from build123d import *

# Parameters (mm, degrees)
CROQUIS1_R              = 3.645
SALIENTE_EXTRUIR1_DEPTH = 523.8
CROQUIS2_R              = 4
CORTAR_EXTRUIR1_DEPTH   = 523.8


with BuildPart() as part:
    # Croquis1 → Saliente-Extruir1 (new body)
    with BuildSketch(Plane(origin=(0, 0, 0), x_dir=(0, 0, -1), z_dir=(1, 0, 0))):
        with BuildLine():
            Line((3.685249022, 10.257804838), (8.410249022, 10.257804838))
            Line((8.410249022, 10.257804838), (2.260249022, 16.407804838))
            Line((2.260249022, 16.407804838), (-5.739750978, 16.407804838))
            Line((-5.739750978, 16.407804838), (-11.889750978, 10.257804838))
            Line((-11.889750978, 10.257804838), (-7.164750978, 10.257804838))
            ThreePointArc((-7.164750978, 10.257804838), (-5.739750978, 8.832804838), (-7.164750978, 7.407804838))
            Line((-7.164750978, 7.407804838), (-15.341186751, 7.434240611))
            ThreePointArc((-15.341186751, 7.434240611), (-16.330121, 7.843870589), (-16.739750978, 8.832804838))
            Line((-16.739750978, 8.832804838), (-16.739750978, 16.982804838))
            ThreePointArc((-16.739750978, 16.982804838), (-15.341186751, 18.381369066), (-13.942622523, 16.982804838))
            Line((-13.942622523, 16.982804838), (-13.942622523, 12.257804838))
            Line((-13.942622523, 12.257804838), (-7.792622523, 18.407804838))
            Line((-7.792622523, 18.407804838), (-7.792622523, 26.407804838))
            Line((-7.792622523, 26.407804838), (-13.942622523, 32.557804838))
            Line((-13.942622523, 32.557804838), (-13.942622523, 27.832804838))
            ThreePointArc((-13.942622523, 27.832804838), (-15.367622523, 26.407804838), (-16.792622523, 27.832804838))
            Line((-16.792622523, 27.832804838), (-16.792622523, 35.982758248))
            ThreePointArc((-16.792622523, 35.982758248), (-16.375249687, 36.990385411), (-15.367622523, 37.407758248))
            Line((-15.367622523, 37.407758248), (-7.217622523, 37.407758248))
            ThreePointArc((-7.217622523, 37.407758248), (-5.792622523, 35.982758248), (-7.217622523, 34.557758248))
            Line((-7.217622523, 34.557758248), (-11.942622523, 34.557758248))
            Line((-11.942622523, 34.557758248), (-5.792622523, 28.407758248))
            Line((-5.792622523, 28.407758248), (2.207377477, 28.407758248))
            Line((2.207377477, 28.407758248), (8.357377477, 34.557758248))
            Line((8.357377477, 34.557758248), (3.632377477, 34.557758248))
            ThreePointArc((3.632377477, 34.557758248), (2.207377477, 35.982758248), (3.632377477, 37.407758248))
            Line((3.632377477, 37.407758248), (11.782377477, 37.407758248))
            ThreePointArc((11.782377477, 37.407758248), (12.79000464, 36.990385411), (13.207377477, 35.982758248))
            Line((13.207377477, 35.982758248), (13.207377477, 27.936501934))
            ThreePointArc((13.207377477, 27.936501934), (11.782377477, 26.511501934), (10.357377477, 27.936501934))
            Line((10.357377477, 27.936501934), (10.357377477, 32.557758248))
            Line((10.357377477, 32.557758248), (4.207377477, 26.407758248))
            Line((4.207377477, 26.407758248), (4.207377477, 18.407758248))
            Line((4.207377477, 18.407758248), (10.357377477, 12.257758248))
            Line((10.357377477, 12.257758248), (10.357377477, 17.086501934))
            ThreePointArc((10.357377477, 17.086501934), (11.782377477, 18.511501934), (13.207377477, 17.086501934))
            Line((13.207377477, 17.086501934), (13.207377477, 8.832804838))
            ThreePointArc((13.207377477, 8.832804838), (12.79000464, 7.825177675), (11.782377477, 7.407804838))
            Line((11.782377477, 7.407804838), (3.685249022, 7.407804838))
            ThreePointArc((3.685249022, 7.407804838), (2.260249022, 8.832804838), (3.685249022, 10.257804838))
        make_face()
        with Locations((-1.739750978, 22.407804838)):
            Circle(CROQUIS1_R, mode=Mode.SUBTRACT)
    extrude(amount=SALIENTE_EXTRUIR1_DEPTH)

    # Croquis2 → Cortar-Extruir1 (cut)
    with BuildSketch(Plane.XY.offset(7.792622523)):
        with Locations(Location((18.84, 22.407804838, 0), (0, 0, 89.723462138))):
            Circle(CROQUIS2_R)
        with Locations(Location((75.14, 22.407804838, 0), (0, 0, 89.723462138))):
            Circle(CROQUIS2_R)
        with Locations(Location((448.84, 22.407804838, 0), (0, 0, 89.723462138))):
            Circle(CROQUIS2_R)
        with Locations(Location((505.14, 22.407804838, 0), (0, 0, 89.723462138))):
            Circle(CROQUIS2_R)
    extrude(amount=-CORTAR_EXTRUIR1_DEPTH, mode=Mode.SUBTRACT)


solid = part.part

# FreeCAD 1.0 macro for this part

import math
import FreeCAD as App
import Part
import Sketcher

doc = App.newDocument("Part")
body = doc.addObject("PartDesign::Body", "Body")

# Sketch on YZ plane
sketch1 = body.newObject("Sketcher::SketchObject", "Sketch")
sketch1.AttachmentSupport = (doc.getObject("YZ_Plane"), [""])
sketch1.MapMode = "FlatFace"
sketch1.addGeometry([
    Part.LineSegment(App.Vector(10.3, -8.4, 0), App.Vector(10.3, -3.7, 0)),  # 0
    Part.ArcOfCircle(Part.Circle(App.Vector(8.8, -3.7, 0), App.Vector(0, 0, 1), 1.4), math.radians(0), math.radians(180)),  # 1
    Part.LineSegment(App.Vector(7.4, -3.7, 0), App.Vector(7.4, -11.8, 0)),  # 2
    Part.ArcOfCircle(Part.Circle(App.Vector(8.8, -11.8, 0), App.Vector(0, 0, 1), 1.4), math.radians(-180), math.radians(-90)),  # 3
    Part.LineSegment(App.Vector(8.8, -13.2, 0), App.Vector(17.1, -13.2, 0)),  # 4
    Part.ArcOfCircle(Part.Circle(App.Vector(17.1, -11.8, 0), App.Vector(0, 0, 1), 1.4), math.radians(-90), math.radians(90)),  # 5
    Part.LineSegment(App.Vector(17.1, -10.4, 0), App.Vector(12.3, -10.4, 0)),  # 6
    Part.LineSegment(App.Vector(12.3, -10.4, 0), App.Vector(18.4, -4.2, 0)),  # 7
    Part.LineSegment(App.Vector(18.4, -4.2, 0), App.Vector(26.4, -4.2, 0)),  # 8
    Part.LineSegment(App.Vector(26.4, -4.2, 0), App.Vector(32.6, -10.4, 0)),  # 9
    Part.LineSegment(App.Vector(32.6, -10.4, 0), App.Vector(27.9, -10.4, 0)),  # 10
    Part.ArcOfCircle(Part.Circle(App.Vector(27.9, -11.8, 0), App.Vector(0, 0, 1), 1.4), math.radians(90), math.radians(270)),  # 11
    Part.LineSegment(App.Vector(27.9, -13.2, 0), App.Vector(36, -13.2, 0)),  # 12
    Part.ArcOfCircle(Part.Circle(App.Vector(36, -11.8, 0), App.Vector(0, 0, 1), 1.4), math.radians(-90), math.radians(0)),  # 13
    Part.LineSegment(App.Vector(37.4, -11.8, 0), App.Vector(37.4, -3.6, 0)),  # 14
    Part.ArcOfCircle(Part.Circle(App.Vector(36, -3.6, 0), App.Vector(0, 0, 1), 1.4), math.radians(0), math.radians(180)),  # 15
    Part.LineSegment(App.Vector(34.6, -3.6, 0), App.Vector(34.6, -8.4, 0)),  # 16
    Part.LineSegment(App.Vector(34.6, -8.4, 0), App.Vector(28.4, -2.2, 0)),  # 17
    Part.LineSegment(App.Vector(28.4, -2.2, 0), App.Vector(28.4, 5.8, 0)),  # 18
    Part.LineSegment(App.Vector(28.4, 5.8, 0), App.Vector(34.6, 11.9, 0)),  # 19
    Part.LineSegment(App.Vector(34.6, 11.9, 0), App.Vector(34.6, 7.2, 0)),  # 20
    Part.ArcOfCircle(Part.Circle(App.Vector(36, 7.2, 0), App.Vector(0, 0, 1), 1.4), math.radians(180), math.radians(360)),  # 21
    Part.LineSegment(App.Vector(37.4, 7.2, 0), App.Vector(37.4, 15.4, 0)),  # 22
    Part.ArcOfCircle(Part.Circle(App.Vector(36, 15.4, 0), App.Vector(0, 0, 1), 1.4), math.radians(0), math.radians(90)),  # 23
    Part.LineSegment(App.Vector(36, 16.8, 0), App.Vector(27.8, 16.8, 0)),  # 24
    Part.ArcOfCircle(Part.Circle(App.Vector(27.8, 15.4, 0), App.Vector(0, 0, 1), 1.4), math.radians(90), math.radians(270)),  # 25
    Part.LineSegment(App.Vector(27.8, 13.9, 0), App.Vector(32.6, 13.9, 0)),  # 26
    Part.LineSegment(App.Vector(32.6, 13.9, 0), App.Vector(26.4, 7.8, 0)),  # 27
    Part.LineSegment(App.Vector(26.4, 7.8, 0), App.Vector(18.4, 7.8, 0)),  # 28
    Part.LineSegment(App.Vector(18.4, 7.8, 0), App.Vector(12.3, 13.9, 0)),  # 29
    Part.LineSegment(App.Vector(12.3, 13.9, 0), App.Vector(17, 13.9, 0)),  # 30
    Part.ArcOfCircle(Part.Circle(App.Vector(17, 15.3, 0), App.Vector(0, 0, 1), 1.4), math.radians(-90), math.radians(90)),  # 31
    Part.LineSegment(App.Vector(17, 16.7, 0), App.Vector(8.8, 16.7, 0)),  # 32
    Part.ArcOfCircle(Part.Circle(App.Vector(8.8, 15.3, 0), App.Vector(0, 0, 1), 1.4), math.radians(90), math.radians(180)),  # 33
    Part.LineSegment(App.Vector(7.4, 15.3, 0), App.Vector(7.4, 7.2, 0)),  # 34
    Part.ArcOfCircle(Part.Circle(App.Vector(8.8, 7.2, 0), App.Vector(0, 0, 1), 1.4), math.radians(180), math.radians(360)),  # 35
    Part.LineSegment(App.Vector(10.3, 7.2, 0), App.Vector(10.3, 11.9, 0)),  # 36
    Part.LineSegment(App.Vector(10.3, 11.9, 0), App.Vector(16.4, 5.7, 0)),  # 37
    Part.LineSegment(App.Vector(16.4, 5.7, 0), App.Vector(16.4, -2.3, 0)),  # 38
    Part.LineSegment(App.Vector(16.4, -2.3, 0), App.Vector(10.3, -8.4, 0)),  # 39
    Part.Circle(App.Vector(22.4, 1.7, 0), App.Vector(0, 0, 1), 3.6),  # 40
], False)
sketch1.addConstraint([
    Sketcher.Constraint("Tangent", 0, 2, 1, 1),
    Sketcher.Constraint("Tangent", 1, 2, 2, 1),
    Sketcher.Constraint("Tangent", 2, 2, 3, 1),
    Sketcher.Constraint("Tangent", 3, 2, 4, 1),
    Sketcher.Constraint("Tangent", 4, 2, 5, 1),
    Sketcher.Constraint("Tangent", 5, 2, 6, 1),
    Sketcher.Constraint("Coincident", 6, 2, 7, 1),
    Sketcher.Constraint("Coincident", 7, 2, 8, 1),
    Sketcher.Constraint("Coincident", 8, 2, 9, 1),
    Sketcher.Constraint("Coincident", 9, 2, 10, 1),
    Sketcher.Constraint("Tangent", 10, 2, 11, 1),
    Sketcher.Constraint("Tangent", 11, 2, 12, 1),
    Sketcher.Constraint("Tangent", 12, 2, 13, 1),
    Sketcher.Constraint("Tangent", 13, 2, 14, 1),
    Sketcher.Constraint("Tangent", 14, 2, 15, 1),
    Sketcher.Constraint("Tangent", 15, 2, 16, 1),
    Sketcher.Constraint("Coincident", 16, 2, 17, 1),
    Sketcher.Constraint("Coincident", 17, 2, 18, 1),
    Sketcher.Constraint("Coincident", 18, 2, 19, 1),
    Sketcher.Constraint("Coincident", 19, 2, 20, 1),
    Sketcher.Constraint("Tangent", 20, 2, 21, 1),
    Sketcher.Constraint("Tangent", 21, 2, 22, 1),
    Sketcher.Constraint("Tangent", 22, 2, 23, 1),
    Sketcher.Constraint("Tangent", 23, 2, 24, 1),
    Sketcher.Constraint("Tangent", 24, 2, 25, 1),
    Sketcher.Constraint("Tangent", 25, 2, 26, 1),
    Sketcher.Constraint("Coincident", 26, 2, 27, 1),
    Sketcher.Constraint("Coincident", 27, 2, 28, 1),
    Sketcher.Constraint("Coincident", 28, 2, 29, 1),
    Sketcher.Constraint("Coincident", 29, 2, 30, 1),
    Sketcher.Constraint("Tangent", 30, 2, 31, 1),
    Sketcher.Constraint("Tangent", 31, 2, 32, 1),
    Sketcher.Constraint("Tangent", 32, 2, 33, 1),
    Sketcher.Constraint("Coincident", 33, 2, 34, 1),
    Sketcher.Constraint("Coincident", 34, 2, 35, 1),
    Sketcher.Constraint("Tangent", 35, 2, 36, 1),
    Sketcher.Constraint("Coincident", 36, 2, 37, 1),
    Sketcher.Constraint("Coincident", 37, 2, 38, 1),
    Sketcher.Constraint("Coincident", 38, 2, 39, 1),
    Sketcher.Constraint("Coincident", 39, 2, 0, 1),
    Sketcher.Constraint("Vertical", 0),
    Sketcher.Constraint("Vertical", 2),
    Sketcher.Constraint("Horizontal", 4),
    Sketcher.Constraint("Horizontal", 6),
    Sketcher.Constraint("Horizontal", 8),
    Sketcher.Constraint("Horizontal", 10),
    Sketcher.Constraint("Horizontal", 12),
    Sketcher.Constraint("Vertical", 14),
    Sketcher.Constraint("Vertical", 16),
    Sketcher.Constraint("Vertical", 18),
    Sketcher.Constraint("Vertical", 20),
    Sketcher.Constraint("Vertical", 22),
    Sketcher.Constraint("Horizontal", 24),
    Sketcher.Constraint("Horizontal", 26),
    Sketcher.Constraint("Horizontal", 28),
    Sketcher.Constraint("Horizontal", 30),
    Sketcher.Constraint("Horizontal", 32),
    Sketcher.Constraint("Vertical", 36),
    Sketcher.Constraint("Vertical", 38),
    Sketcher.Constraint("Equal", 1, 3),
    Sketcher.Constraint("Equal", 3, 5),
    Sketcher.Constraint("Equal", 5, 11),
    Sketcher.Constraint("Equal", 11, 13),
    Sketcher.Constraint("Equal", 13, 15),
    Sketcher.Constraint("Equal", 15, 21),
    Sketcher.Constraint("Equal", 21, 23),
    Sketcher.Constraint("Equal", 23, 25),
    Sketcher.Constraint("Equal", 31, 33),
    Sketcher.Constraint("Equal", 25, 35),
    Sketcher.Constraint("Perpendicular", 7, 9),
    Sketcher.Constraint("Parallel", 9, 17),
    Sketcher.Constraint("Perpendicular", 17, 19),
    Sketcher.Constraint("Parallel", 19, 27),
    Sketcher.Constraint("Perpendicular", 27, 29),
    Sketcher.Constraint("Parallel", 29, 37),
    Sketcher.Constraint("Perpendicular", 37, 39),
    Sketcher.Constraint("Horizontal", 5, 3, 11, 3),
    Sketcher.Constraint("Horizontal", 26, 2, 29, 2),
    Sketcher.Constraint("Horizontal", 31, 3, 33, 2),
    Sketcher.Constraint("Horizontal", 35, 3, 34, 2),
    Sketcher.Constraint("Vertical", 15, 3, 21, 3),
    Sketcher.Constraint("Vertical", 3, 3, 33, 3),
    Sketcher.Constraint("Vertical", 33, 3, 35, 3),
    Sketcher.Constraint("Equal", 8, 28),
    Sketcher.Constraint("Equal", 26, 30),
    Sketcher.Constraint("Equal", 30, 0),
    Sketcher.Constraint("Equal", 32, 14),
    Sketcher.Constraint("Equal", 0, 16),
    Sketcher.Constraint("Equal", 28, 18),
    Sketcher.Constraint("Equal", 16, 20),
    Sketcher.Constraint("Equal", 14, 22),
    Sketcher.Constraint("Equal", 20, 36),
    Sketcher.Constraint("Equal", 18, 38),
    Sketcher.Constraint("Equal", 7, 9),
    Sketcher.Constraint("Equal", 9, 17),
    Sketcher.Constraint("Equal", 19, 27),
    Sketcher.Constraint("Equal", 29, 37),
    Sketcher.Constraint("Diameter", 40, 7.29),
    Sketcher.Constraint("DistanceX", 8, 1, 8, 2, 8.0),
    Sketcher.Constraint("Radius", 1, 1.425),
    Sketcher.Constraint("DistanceY", 13, 3, 21, 3, 19.0),
    Sketcher.Constraint("DistanceY", 11, 2, 8, 2, 9.0),
    Sketcher.Constraint("DistanceX", 9, 2, 15, 2, 2.0),
    Sketcher.Constraint("DistanceY", 9, 2, 16, 2, 2.0),
    Sketcher.Constraint("DistanceX", 40, 3, 27, 2, 4.0),
    Sketcher.Constraint("DistanceY", 40, 3, 37, 2, 4.0),
    Sketcher.Constraint("DistanceX", 5, 3, 11, 3, 10.85),
    Sketcher.Constraint("Radius", 31, 1.398564),
    Sketcher.Constraint("DistanceY", 34, 2, 32, 2, 9.575),
    Sketcher.Constraint("DistanceX", -1, 1, 5, 3, 17.086502),
    Sketcher.Constraint("DistanceX", 4, 1, 4, 2, 8.253697),
    Sketcher.Constraint("DistanceX", 6, 2, 6, 1, 4.828744),
    Sketcher.Constraint("DistanceY", 1, 3, -1, 1, 3.685249),
])
pad1 = body.newObject("PartDesign::Pad", "Pad")
pad1.Profile = sketch1
pad1.Length = 523.8

# Sketch on XY plane
sketch2 = body.newObject("Sketcher::SketchObject", "Sketch001")
sketch2.AttachmentSupport = (doc.getObject("XY_Plane"), [""])
sketch2.MapMode = "FlatFace"
sketch2.AttachmentOffset = App.Placement(App.Vector(0, 0, 7.792623), App.Rotation())
sketch2.addGeometry([
    Part.Circle(App.Vector(18.8, 22.4, 0), App.Vector(0, 0, 1), 4),
    Part.Circle(App.Vector(75.1, 22.4, 0), App.Vector(0, 0, 1), 4),
    Part.Circle(App.Vector(448.8, 22.4, 0), App.Vector(0, 0, 1), 4),
    Part.Circle(App.Vector(505.1, 22.4, 0), App.Vector(0, 0, 1), 4),
], False)
sketch2.addConstraint([
    Sketcher.Constraint("Equal", 0, 1),
    Sketcher.Constraint("Equal", 1, 2),
    Sketcher.Constraint("Equal", 2, 3),
    Sketcher.Constraint("Horizontal", 0, 3, 1, 3),
    Sketcher.Constraint("Horizontal", 1, 3, 2, 3),
    Sketcher.Constraint("Horizontal", 2, 3, 3, 3),
    Sketcher.Constraint("Diameter", 0, 8.0),
    Sketcher.Constraint("DistanceX", 0, 3, 2, 3, 430.0),
    Sketcher.Constraint("DistanceX", 1, 3, 3, 3, 430.0),
    Sketcher.Constraint("DistanceX", 0, 3, 1, 3, 56.3),
    Sketcher.Constraint("DistanceX", -1, 1, 0, 3, 18.84),
    Sketcher.Constraint("DistanceY", -1, 1, 0, 3, 22.407805),
])
pocket1 = body.newObject("PartDesign::Pocket", "Pocket")
pocket1.Profile = sketch2
pocket1.Length = 523.8

doc.recompute()
